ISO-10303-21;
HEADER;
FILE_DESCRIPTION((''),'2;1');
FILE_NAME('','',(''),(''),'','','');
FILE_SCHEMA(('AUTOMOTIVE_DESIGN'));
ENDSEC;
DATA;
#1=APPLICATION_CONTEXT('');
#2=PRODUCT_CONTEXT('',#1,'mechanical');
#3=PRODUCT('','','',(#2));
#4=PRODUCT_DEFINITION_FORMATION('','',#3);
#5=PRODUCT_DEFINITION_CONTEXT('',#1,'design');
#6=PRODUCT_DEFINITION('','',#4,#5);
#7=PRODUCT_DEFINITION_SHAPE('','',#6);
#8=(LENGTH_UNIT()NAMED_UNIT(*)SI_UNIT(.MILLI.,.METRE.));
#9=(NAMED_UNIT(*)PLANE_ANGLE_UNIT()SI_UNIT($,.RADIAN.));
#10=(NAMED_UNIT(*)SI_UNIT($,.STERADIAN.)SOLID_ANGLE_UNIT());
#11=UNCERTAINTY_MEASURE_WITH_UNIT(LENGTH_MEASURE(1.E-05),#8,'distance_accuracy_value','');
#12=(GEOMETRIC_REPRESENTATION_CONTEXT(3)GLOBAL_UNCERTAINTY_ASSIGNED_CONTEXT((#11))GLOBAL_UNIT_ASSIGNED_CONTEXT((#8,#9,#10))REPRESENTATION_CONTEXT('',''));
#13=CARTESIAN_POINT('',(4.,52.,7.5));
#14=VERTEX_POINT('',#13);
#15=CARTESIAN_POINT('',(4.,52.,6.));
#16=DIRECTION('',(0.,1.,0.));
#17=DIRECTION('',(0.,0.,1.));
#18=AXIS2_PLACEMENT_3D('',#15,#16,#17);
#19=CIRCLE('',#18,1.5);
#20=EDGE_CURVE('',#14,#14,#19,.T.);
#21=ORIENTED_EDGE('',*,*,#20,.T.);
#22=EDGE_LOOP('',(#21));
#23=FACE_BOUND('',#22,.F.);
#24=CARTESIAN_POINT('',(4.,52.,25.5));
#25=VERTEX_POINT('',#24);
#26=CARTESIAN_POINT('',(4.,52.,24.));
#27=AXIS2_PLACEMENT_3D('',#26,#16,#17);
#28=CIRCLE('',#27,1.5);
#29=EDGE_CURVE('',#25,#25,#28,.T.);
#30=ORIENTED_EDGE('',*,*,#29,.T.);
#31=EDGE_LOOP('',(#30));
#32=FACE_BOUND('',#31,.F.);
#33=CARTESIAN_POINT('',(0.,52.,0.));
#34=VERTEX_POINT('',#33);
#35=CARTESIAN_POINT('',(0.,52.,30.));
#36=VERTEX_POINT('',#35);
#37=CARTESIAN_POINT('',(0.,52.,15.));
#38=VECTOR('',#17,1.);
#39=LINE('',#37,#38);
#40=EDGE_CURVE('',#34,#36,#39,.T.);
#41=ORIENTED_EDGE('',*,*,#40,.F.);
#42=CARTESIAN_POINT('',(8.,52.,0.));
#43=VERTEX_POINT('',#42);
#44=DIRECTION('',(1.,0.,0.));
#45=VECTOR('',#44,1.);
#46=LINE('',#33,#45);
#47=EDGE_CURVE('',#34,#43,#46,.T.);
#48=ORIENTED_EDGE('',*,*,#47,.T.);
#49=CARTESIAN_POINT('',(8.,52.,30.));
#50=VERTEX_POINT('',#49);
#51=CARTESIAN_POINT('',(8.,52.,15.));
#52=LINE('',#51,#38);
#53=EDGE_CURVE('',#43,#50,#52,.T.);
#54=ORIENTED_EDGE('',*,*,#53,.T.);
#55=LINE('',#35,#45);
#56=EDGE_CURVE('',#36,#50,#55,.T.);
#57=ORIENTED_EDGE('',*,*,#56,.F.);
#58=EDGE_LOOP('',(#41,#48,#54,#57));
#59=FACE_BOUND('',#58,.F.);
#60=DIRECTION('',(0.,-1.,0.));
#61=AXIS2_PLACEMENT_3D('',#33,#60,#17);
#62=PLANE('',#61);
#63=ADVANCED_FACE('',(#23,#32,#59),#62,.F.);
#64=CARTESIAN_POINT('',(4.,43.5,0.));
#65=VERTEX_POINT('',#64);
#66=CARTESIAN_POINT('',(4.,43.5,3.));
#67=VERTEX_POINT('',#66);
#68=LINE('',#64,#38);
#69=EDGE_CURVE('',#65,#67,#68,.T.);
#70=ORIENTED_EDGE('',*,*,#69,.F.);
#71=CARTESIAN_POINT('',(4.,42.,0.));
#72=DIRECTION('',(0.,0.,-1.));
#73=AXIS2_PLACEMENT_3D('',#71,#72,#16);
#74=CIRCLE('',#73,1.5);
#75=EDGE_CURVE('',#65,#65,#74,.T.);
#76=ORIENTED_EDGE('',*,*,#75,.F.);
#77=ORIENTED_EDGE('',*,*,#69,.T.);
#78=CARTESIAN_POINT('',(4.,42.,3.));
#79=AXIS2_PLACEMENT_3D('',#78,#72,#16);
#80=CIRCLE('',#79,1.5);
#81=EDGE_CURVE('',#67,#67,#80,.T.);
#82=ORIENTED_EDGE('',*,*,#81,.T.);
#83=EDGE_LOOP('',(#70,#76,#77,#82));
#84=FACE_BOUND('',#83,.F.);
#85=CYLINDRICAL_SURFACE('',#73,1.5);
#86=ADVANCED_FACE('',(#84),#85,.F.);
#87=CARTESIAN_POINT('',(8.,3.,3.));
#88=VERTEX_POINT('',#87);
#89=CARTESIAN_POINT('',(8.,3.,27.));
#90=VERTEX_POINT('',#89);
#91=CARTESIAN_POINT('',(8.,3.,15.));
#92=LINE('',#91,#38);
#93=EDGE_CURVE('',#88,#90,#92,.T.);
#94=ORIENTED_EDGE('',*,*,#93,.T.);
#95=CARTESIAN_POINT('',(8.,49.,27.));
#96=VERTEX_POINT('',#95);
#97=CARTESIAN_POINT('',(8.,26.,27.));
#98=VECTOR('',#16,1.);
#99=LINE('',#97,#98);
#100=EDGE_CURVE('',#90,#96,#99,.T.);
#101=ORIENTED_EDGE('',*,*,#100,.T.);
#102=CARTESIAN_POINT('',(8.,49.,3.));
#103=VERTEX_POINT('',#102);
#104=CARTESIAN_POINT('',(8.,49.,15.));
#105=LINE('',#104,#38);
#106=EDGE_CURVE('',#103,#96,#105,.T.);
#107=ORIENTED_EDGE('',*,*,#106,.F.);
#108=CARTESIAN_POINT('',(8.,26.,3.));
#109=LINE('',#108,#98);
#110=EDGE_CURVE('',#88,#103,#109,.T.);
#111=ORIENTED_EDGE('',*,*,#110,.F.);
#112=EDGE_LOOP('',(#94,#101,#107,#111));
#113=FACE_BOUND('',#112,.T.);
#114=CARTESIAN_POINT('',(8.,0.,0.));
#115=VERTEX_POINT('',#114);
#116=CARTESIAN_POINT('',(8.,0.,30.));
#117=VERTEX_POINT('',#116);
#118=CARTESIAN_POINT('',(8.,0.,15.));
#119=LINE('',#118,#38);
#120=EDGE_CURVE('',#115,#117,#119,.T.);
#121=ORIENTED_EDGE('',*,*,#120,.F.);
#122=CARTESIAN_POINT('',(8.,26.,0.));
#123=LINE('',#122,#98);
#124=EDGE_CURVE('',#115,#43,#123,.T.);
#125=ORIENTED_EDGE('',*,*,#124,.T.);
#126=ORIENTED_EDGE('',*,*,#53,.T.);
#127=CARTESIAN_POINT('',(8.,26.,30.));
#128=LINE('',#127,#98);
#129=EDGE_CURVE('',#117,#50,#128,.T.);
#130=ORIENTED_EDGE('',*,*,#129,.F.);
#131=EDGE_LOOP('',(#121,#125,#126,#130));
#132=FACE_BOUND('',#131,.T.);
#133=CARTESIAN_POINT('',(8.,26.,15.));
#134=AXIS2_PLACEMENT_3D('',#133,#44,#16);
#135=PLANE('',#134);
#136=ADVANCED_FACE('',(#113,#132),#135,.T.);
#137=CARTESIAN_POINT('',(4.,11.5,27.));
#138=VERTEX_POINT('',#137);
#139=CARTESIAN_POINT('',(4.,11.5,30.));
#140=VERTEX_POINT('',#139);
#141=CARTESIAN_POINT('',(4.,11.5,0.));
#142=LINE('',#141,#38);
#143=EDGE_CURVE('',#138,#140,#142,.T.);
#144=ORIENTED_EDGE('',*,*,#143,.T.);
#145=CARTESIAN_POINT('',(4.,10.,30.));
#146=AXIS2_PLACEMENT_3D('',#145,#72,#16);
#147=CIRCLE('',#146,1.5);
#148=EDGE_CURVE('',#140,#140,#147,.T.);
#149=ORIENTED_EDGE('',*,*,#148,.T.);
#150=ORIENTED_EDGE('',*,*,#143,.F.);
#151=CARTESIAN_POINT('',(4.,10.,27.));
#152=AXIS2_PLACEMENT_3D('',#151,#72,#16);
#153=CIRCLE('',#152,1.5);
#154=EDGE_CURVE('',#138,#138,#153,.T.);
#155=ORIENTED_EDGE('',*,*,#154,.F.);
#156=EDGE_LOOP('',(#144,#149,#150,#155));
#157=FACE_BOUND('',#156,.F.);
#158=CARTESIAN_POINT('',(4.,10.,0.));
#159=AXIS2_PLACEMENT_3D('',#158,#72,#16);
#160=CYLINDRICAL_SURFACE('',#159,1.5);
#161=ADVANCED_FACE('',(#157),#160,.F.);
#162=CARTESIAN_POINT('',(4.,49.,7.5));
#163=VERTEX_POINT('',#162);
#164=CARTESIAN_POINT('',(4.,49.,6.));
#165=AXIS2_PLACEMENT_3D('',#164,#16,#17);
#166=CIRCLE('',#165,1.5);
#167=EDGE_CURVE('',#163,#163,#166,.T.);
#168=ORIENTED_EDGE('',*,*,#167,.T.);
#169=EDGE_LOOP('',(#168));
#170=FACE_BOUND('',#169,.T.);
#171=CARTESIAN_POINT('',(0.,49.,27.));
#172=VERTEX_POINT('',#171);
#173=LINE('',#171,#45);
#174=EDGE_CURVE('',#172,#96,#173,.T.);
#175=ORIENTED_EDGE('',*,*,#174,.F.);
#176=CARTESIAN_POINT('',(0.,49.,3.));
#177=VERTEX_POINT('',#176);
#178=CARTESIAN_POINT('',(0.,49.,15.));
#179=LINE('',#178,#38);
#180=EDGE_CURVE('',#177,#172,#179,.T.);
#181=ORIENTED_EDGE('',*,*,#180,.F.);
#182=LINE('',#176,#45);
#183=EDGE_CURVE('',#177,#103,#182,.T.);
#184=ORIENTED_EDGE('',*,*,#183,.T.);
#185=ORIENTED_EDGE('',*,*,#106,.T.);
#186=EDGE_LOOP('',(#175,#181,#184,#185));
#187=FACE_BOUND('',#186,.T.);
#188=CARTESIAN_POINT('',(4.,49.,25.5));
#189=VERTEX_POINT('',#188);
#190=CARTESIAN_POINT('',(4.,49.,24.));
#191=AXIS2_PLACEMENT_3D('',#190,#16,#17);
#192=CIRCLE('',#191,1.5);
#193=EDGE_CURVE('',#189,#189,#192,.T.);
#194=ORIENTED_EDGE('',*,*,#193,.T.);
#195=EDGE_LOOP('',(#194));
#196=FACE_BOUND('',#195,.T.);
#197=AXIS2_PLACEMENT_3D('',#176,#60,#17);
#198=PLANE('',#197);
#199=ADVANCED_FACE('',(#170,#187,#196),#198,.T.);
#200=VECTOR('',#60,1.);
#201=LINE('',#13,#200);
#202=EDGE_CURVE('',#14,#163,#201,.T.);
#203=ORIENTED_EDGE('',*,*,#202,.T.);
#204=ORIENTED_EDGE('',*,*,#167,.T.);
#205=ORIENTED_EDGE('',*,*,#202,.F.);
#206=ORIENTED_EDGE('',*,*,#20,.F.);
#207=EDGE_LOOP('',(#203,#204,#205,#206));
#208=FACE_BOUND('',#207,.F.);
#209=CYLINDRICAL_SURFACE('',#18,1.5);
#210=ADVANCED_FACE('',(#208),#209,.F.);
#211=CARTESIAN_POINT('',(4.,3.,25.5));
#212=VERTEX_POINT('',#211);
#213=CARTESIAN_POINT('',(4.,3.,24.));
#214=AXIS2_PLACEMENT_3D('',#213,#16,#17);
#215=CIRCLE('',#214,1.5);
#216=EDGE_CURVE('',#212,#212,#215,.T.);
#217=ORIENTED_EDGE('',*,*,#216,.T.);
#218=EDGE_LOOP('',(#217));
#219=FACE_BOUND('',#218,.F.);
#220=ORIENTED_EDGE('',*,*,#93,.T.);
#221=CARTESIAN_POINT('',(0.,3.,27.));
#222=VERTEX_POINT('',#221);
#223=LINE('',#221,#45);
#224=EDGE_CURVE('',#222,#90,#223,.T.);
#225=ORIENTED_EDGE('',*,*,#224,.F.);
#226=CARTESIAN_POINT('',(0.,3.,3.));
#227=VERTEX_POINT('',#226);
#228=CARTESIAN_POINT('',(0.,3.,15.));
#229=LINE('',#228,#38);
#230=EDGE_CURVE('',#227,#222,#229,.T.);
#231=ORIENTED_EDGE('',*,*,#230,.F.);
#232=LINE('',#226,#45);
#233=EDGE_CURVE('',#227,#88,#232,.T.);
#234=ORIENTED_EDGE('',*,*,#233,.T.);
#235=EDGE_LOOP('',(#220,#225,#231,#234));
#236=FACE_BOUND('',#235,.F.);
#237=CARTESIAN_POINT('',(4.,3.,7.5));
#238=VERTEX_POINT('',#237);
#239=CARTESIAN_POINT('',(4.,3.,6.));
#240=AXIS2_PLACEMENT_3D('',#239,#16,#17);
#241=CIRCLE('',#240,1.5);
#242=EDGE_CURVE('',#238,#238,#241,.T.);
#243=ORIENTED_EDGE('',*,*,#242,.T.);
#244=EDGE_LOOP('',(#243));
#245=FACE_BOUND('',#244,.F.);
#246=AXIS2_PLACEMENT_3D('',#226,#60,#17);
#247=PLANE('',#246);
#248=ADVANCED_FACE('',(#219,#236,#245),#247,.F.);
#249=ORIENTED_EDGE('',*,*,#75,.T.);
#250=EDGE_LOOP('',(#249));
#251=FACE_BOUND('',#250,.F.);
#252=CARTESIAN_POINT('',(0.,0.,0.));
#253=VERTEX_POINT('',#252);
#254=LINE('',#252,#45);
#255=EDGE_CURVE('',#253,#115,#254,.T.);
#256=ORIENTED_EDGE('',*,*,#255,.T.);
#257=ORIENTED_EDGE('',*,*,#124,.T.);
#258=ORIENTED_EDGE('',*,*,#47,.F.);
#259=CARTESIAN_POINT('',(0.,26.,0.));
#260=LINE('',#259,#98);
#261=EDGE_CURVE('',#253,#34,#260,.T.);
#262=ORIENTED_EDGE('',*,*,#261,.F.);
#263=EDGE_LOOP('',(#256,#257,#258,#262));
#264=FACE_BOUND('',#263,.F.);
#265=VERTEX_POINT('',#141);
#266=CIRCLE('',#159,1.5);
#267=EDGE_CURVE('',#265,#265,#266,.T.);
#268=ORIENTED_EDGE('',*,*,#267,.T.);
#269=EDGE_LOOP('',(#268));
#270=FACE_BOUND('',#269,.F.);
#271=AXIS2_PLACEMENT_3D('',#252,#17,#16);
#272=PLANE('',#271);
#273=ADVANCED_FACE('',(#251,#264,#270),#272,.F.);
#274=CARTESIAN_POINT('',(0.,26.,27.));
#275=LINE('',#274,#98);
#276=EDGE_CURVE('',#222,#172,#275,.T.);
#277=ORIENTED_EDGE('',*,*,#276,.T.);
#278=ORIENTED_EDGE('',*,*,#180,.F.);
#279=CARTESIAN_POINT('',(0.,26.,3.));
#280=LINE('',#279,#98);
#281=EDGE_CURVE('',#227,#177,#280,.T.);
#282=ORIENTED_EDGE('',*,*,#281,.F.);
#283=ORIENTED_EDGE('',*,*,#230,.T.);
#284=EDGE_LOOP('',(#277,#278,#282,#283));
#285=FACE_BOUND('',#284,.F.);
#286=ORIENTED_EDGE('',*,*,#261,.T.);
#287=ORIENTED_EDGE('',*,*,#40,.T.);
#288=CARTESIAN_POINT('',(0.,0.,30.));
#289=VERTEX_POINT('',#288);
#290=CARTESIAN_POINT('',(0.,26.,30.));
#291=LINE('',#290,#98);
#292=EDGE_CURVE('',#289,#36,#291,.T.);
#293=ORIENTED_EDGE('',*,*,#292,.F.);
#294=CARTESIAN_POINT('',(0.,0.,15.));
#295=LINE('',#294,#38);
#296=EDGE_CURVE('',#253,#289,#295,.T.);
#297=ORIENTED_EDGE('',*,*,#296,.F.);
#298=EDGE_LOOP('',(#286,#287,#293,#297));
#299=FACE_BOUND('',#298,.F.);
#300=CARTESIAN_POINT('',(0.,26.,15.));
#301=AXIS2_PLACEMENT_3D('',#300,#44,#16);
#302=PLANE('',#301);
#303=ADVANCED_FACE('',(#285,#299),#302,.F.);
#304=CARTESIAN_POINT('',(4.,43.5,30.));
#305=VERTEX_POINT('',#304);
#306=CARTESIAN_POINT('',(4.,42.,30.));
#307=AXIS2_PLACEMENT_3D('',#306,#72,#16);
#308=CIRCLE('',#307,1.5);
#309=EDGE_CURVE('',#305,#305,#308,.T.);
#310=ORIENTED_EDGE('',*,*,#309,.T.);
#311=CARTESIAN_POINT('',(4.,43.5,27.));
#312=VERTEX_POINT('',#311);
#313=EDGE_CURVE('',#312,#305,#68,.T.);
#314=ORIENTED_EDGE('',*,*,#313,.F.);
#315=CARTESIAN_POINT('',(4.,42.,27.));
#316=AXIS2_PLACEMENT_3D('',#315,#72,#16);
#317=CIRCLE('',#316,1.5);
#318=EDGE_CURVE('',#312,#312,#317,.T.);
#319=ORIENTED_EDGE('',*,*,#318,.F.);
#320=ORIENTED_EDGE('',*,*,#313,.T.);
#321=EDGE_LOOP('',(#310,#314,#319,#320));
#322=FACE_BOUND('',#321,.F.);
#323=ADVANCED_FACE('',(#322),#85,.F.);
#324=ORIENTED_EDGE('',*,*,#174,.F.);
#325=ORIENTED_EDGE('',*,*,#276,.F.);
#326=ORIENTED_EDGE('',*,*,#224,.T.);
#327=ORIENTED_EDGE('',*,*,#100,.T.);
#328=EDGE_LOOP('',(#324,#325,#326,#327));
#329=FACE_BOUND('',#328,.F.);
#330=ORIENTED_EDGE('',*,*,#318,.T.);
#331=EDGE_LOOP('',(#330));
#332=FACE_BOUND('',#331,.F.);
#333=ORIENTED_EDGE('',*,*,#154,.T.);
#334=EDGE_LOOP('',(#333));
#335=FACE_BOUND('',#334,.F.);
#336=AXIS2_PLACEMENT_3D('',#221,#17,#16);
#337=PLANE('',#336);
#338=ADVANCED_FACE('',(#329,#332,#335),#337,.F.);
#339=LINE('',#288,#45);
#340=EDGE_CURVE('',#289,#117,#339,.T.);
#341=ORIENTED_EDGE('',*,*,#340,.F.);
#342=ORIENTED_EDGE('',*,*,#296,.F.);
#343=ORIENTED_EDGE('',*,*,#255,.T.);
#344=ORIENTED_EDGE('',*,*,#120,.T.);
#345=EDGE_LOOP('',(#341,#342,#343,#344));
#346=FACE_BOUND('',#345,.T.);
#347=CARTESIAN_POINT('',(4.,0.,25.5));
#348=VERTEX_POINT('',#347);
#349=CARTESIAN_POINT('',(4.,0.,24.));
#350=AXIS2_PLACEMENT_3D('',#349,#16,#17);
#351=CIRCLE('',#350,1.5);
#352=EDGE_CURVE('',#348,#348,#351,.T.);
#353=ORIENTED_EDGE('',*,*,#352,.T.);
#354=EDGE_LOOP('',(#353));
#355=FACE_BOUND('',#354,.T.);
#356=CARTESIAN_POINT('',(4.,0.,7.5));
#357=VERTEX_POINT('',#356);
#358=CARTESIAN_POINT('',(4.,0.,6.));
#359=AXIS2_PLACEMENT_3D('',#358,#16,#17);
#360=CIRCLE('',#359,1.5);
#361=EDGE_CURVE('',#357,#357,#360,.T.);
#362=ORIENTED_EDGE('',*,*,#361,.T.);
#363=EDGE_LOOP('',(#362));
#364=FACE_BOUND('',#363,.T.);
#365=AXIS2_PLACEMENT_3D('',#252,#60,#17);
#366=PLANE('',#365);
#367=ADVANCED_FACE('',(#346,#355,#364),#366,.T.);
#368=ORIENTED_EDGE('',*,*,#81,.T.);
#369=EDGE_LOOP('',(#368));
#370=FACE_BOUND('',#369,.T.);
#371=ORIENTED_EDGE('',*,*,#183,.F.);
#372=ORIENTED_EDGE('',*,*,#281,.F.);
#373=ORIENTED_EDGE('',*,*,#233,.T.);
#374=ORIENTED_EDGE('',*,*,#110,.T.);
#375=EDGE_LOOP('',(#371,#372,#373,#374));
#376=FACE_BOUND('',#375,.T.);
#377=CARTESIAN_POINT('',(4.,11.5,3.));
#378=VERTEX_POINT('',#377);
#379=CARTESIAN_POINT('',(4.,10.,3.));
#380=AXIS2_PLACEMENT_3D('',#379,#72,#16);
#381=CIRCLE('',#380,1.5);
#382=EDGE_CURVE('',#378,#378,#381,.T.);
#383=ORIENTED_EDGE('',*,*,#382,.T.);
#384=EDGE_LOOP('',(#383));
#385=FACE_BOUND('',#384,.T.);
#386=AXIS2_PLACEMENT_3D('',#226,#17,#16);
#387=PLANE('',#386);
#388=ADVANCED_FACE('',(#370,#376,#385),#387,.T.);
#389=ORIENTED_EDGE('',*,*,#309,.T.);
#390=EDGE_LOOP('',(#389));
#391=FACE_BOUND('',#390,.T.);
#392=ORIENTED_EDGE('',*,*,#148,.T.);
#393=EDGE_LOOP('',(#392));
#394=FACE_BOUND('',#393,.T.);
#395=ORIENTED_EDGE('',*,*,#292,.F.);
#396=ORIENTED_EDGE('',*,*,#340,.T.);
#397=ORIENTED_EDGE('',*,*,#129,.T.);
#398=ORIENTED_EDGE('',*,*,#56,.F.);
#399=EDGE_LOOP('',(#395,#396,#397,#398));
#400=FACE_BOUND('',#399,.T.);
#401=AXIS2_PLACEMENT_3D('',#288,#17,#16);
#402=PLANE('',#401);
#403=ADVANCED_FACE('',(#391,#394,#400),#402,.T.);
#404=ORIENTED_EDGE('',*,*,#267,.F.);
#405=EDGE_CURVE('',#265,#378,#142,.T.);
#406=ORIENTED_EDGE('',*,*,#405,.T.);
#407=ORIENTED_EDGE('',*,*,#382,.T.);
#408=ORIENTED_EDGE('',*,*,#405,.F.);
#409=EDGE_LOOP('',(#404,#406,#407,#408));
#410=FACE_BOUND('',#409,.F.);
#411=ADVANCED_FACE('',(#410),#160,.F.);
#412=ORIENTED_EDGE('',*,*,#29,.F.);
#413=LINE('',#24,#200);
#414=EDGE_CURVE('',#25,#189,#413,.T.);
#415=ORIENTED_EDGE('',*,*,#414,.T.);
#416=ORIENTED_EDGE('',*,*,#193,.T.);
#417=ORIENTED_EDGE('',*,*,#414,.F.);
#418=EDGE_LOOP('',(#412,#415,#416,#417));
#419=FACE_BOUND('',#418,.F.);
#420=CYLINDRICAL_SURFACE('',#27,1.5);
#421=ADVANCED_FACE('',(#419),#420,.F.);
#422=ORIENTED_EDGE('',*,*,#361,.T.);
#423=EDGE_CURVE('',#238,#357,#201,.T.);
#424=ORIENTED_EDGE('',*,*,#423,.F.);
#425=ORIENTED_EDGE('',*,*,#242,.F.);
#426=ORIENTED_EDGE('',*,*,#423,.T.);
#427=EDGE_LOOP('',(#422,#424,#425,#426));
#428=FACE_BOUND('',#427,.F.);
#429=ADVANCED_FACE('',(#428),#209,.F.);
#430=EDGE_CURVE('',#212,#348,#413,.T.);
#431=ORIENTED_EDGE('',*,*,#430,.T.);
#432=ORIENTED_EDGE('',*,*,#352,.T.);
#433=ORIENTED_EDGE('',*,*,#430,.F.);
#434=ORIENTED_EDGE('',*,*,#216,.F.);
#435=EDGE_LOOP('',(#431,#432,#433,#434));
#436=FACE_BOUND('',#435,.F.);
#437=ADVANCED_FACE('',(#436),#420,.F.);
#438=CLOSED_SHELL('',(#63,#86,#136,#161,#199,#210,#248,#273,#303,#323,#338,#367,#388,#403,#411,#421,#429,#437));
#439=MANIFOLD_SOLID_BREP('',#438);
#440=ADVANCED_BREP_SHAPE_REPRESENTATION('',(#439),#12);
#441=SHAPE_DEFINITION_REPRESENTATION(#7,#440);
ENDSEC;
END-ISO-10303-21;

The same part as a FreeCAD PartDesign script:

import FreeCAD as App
import Part
import Sketcher
from FreeCAD import Vector


def add_polygon(sketch, points):
    """Adds a closed chain of lines whose ends are joined by coincident constraints."""
    first, n = sketch.GeometryCount, len(points)
    for a, b in zip(points, points[1:] + points[:1]):
        sketch.addGeometry(Part.LineSegment(App.Vector(*a, 0), App.Vector(*b, 0)), False)
    for i in range(n):
        sketch.addConstraint(Sketcher.Constraint("Coincident", first + i, 2, first + (i + 1) % n, 1))

doc = App.newDocument("Part")
params = doc.addObject("Spreadsheet::Sheet", "Params")
for row, (alias, value) in enumerate([
    ("sketch1_width", "52 mm"),
    ("sketch1_width2", "46 mm"),
    ("sketch1_height", "30 mm"),
    ("sketch1_height2", "24 mm"),
    ("pad1_length", "8 mm"),
    ("sketch2_diameter", "3 mm"),
    ("sketch3_diameter", "3 mm"),
], start=1):
    params.set(f"A{row}", alias)
    params.set(f"B{row}", "=" + value)
    params.setAlias(f"B{row}", alias)

body = doc.addObject("PartDesign::Body", "Body")

# Sketch on YZ plane
sketch1 = doc.addObject("Sketcher::SketchObject", "Sketch")
body.addObject(sketch1)
sketch1.AttachmentSupport = (doc.YZ_Plane, [""])
sketch1.MapMode = "FlatFace"
add_polygon(sketch1, [(0, 30), (0, 0), (52, 0), (52, 30)])  # lines 0-3
add_polygon(sketch1, [(49, 3), (3, 3), (3, 27), (49, 27)])  # lines 4-7
sketch1.addConstraint(Sketcher.Constraint("Vertical", 0))
sketch1.addConstraint(Sketcher.Constraint("Horizontal", 1))
sketch1.addConstraint(Sketcher.Constraint("Vertical", 2))
sketch1.addConstraint(Sketcher.Constraint("Horizontal", 3))
sketch1.addConstraint(Sketcher.Constraint("Horizontal", 4))
sketch1.addConstraint(Sketcher.Constraint("Vertical", 5))
sketch1.addConstraint(Sketcher.Constraint("Horizontal", 6))
sketch1.addConstraint(Sketcher.Constraint("Vertical", 7))
sketch1.addConstraint(Sketcher.Constraint("Coincident", 0, 2, -1, 1))
sketch1.addConstraint(Sketcher.Constraint("DistanceX", 1, 1, 1, 2, 52.0))
sketch1.addConstraint(Sketcher.Constraint("DistanceX", 4, 2, 4, 1, 46.0))
sketch1.addConstraint(Sketcher.Constraint("DistanceY", 0, 2, 0, 1, 30.0))
sketch1.addConstraint(Sketcher.Constraint("DistanceY", 5, 1, 5, 2, 24.0))
sketch1.addConstraint(Sketcher.Constraint("DistanceX", -1, 1, 4, 2, 3.0))
sketch1.addConstraint(Sketcher.Constraint("DistanceY", -1, 1, 4, 2, 3.0))
sketch1.setExpression("Constraints[17]", "Params.sketch1_width")
sketch1.setExpression("Constraints[18]", "Params.sketch1_width2")
sketch1.setExpression("Constraints[19]", "Params.sketch1_height")
sketch1.setExpression("Constraints[20]", "Params.sketch1_height2")
pad1 = doc.addObject("PartDesign::Pad", "Pad")
body.addObject(pad1)
pad1.Profile = sketch1
pad1.setExpression("Length", "Params.pad1_length")

# Sketch on XZ plane
sketch2 = doc.addObject("Sketcher::SketchObject", "Sketch001")
body.addObject(sketch2)
sketch2.AttachmentSupport = (doc.XZ_Plane, [""])
sketch2.MapMode = "FlatFace"
sketch2.AttachmentOffset = App.Placement(Vector(0, 0, -52), App.Rotation())
sketch2.addGeometry(Part.Circle(Vector(4, 6, 0), Vector(0, 0, 1), 1.5), False)
sketch2.addGeometry(Part.Circle(Vector(4, 24, 0), Vector(0, 0, 1), 1.5), False)
sketch2.addConstraint(Sketcher.Constraint("Equal", 0, 1))
sketch2.addConstraint(Sketcher.Constraint("Vertical", 0, 3, 1, 3))
sketch2.addConstraint(Sketcher.Constraint("Diameter", 0, 3.0))
sketch2.addConstraint(Sketcher.Constraint("DistanceX", -1, 1, 0, 3, 4.0))
sketch2.addConstraint(Sketcher.Constraint("DistanceY", -1, 1, 0, 3, 6.0))
sketch2.addConstraint(Sketcher.Constraint("DistanceY", -1, 1, 1, 3, 24.0))
sketch2.setExpression("Constraints[2]", "Params.sketch2_diameter")
pocket1 = doc.addObject("PartDesign::Pocket", "Pocket")
body.addObject(pocket1)
pocket1.Profile = sketch2
pocket1.Type = "ThroughAll"
pocket1.Reversed = True

# Sketch on XY plane
sketch3 = doc.addObject("Sketcher::SketchObject", "Sketch002")
body.addObject(sketch3)
sketch3.AttachmentSupport = (doc.XY_Plane, [""])
sketch3.MapMode = "FlatFace"
sketch3.addGeometry(Part.Circle(Vector(4, 10, 0), Vector(0, 0, 1), 1.5), False)
sketch3.addGeometry(Part.Circle(Vector(4, 42, 0), Vector(0, 0, 1), 1.5), False)
sketch3.addConstraint(Sketcher.Constraint("Equal", 0, 1))
sketch3.addConstraint(Sketcher.Constraint("Vertical", 0, 3, 1, 3))
sketch3.addConstraint(Sketcher.Constraint("Diameter", 0, 3.0))
sketch3.addConstraint(Sketcher.Constraint("DistanceX", -1, 1, 0, 3, 4.0))
sketch3.addConstraint(Sketcher.Constraint("DistanceY", -1, 1, 0, 3, 10.0))
sketch3.addConstraint(Sketcher.Constraint("DistanceY", -1, 1, 1, 3, 42.0))
sketch3.setExpression("Constraints[2]", "Params.sketch3_diameter")
pocket2 = doc.addObject("PartDesign::Pocket", "Pocket001")
body.addObject(pocket2)
pocket2.Profile = sketch3
pocket2.Type = "ThroughAll"
pocket2.Reversed = True

doc.recompute()
